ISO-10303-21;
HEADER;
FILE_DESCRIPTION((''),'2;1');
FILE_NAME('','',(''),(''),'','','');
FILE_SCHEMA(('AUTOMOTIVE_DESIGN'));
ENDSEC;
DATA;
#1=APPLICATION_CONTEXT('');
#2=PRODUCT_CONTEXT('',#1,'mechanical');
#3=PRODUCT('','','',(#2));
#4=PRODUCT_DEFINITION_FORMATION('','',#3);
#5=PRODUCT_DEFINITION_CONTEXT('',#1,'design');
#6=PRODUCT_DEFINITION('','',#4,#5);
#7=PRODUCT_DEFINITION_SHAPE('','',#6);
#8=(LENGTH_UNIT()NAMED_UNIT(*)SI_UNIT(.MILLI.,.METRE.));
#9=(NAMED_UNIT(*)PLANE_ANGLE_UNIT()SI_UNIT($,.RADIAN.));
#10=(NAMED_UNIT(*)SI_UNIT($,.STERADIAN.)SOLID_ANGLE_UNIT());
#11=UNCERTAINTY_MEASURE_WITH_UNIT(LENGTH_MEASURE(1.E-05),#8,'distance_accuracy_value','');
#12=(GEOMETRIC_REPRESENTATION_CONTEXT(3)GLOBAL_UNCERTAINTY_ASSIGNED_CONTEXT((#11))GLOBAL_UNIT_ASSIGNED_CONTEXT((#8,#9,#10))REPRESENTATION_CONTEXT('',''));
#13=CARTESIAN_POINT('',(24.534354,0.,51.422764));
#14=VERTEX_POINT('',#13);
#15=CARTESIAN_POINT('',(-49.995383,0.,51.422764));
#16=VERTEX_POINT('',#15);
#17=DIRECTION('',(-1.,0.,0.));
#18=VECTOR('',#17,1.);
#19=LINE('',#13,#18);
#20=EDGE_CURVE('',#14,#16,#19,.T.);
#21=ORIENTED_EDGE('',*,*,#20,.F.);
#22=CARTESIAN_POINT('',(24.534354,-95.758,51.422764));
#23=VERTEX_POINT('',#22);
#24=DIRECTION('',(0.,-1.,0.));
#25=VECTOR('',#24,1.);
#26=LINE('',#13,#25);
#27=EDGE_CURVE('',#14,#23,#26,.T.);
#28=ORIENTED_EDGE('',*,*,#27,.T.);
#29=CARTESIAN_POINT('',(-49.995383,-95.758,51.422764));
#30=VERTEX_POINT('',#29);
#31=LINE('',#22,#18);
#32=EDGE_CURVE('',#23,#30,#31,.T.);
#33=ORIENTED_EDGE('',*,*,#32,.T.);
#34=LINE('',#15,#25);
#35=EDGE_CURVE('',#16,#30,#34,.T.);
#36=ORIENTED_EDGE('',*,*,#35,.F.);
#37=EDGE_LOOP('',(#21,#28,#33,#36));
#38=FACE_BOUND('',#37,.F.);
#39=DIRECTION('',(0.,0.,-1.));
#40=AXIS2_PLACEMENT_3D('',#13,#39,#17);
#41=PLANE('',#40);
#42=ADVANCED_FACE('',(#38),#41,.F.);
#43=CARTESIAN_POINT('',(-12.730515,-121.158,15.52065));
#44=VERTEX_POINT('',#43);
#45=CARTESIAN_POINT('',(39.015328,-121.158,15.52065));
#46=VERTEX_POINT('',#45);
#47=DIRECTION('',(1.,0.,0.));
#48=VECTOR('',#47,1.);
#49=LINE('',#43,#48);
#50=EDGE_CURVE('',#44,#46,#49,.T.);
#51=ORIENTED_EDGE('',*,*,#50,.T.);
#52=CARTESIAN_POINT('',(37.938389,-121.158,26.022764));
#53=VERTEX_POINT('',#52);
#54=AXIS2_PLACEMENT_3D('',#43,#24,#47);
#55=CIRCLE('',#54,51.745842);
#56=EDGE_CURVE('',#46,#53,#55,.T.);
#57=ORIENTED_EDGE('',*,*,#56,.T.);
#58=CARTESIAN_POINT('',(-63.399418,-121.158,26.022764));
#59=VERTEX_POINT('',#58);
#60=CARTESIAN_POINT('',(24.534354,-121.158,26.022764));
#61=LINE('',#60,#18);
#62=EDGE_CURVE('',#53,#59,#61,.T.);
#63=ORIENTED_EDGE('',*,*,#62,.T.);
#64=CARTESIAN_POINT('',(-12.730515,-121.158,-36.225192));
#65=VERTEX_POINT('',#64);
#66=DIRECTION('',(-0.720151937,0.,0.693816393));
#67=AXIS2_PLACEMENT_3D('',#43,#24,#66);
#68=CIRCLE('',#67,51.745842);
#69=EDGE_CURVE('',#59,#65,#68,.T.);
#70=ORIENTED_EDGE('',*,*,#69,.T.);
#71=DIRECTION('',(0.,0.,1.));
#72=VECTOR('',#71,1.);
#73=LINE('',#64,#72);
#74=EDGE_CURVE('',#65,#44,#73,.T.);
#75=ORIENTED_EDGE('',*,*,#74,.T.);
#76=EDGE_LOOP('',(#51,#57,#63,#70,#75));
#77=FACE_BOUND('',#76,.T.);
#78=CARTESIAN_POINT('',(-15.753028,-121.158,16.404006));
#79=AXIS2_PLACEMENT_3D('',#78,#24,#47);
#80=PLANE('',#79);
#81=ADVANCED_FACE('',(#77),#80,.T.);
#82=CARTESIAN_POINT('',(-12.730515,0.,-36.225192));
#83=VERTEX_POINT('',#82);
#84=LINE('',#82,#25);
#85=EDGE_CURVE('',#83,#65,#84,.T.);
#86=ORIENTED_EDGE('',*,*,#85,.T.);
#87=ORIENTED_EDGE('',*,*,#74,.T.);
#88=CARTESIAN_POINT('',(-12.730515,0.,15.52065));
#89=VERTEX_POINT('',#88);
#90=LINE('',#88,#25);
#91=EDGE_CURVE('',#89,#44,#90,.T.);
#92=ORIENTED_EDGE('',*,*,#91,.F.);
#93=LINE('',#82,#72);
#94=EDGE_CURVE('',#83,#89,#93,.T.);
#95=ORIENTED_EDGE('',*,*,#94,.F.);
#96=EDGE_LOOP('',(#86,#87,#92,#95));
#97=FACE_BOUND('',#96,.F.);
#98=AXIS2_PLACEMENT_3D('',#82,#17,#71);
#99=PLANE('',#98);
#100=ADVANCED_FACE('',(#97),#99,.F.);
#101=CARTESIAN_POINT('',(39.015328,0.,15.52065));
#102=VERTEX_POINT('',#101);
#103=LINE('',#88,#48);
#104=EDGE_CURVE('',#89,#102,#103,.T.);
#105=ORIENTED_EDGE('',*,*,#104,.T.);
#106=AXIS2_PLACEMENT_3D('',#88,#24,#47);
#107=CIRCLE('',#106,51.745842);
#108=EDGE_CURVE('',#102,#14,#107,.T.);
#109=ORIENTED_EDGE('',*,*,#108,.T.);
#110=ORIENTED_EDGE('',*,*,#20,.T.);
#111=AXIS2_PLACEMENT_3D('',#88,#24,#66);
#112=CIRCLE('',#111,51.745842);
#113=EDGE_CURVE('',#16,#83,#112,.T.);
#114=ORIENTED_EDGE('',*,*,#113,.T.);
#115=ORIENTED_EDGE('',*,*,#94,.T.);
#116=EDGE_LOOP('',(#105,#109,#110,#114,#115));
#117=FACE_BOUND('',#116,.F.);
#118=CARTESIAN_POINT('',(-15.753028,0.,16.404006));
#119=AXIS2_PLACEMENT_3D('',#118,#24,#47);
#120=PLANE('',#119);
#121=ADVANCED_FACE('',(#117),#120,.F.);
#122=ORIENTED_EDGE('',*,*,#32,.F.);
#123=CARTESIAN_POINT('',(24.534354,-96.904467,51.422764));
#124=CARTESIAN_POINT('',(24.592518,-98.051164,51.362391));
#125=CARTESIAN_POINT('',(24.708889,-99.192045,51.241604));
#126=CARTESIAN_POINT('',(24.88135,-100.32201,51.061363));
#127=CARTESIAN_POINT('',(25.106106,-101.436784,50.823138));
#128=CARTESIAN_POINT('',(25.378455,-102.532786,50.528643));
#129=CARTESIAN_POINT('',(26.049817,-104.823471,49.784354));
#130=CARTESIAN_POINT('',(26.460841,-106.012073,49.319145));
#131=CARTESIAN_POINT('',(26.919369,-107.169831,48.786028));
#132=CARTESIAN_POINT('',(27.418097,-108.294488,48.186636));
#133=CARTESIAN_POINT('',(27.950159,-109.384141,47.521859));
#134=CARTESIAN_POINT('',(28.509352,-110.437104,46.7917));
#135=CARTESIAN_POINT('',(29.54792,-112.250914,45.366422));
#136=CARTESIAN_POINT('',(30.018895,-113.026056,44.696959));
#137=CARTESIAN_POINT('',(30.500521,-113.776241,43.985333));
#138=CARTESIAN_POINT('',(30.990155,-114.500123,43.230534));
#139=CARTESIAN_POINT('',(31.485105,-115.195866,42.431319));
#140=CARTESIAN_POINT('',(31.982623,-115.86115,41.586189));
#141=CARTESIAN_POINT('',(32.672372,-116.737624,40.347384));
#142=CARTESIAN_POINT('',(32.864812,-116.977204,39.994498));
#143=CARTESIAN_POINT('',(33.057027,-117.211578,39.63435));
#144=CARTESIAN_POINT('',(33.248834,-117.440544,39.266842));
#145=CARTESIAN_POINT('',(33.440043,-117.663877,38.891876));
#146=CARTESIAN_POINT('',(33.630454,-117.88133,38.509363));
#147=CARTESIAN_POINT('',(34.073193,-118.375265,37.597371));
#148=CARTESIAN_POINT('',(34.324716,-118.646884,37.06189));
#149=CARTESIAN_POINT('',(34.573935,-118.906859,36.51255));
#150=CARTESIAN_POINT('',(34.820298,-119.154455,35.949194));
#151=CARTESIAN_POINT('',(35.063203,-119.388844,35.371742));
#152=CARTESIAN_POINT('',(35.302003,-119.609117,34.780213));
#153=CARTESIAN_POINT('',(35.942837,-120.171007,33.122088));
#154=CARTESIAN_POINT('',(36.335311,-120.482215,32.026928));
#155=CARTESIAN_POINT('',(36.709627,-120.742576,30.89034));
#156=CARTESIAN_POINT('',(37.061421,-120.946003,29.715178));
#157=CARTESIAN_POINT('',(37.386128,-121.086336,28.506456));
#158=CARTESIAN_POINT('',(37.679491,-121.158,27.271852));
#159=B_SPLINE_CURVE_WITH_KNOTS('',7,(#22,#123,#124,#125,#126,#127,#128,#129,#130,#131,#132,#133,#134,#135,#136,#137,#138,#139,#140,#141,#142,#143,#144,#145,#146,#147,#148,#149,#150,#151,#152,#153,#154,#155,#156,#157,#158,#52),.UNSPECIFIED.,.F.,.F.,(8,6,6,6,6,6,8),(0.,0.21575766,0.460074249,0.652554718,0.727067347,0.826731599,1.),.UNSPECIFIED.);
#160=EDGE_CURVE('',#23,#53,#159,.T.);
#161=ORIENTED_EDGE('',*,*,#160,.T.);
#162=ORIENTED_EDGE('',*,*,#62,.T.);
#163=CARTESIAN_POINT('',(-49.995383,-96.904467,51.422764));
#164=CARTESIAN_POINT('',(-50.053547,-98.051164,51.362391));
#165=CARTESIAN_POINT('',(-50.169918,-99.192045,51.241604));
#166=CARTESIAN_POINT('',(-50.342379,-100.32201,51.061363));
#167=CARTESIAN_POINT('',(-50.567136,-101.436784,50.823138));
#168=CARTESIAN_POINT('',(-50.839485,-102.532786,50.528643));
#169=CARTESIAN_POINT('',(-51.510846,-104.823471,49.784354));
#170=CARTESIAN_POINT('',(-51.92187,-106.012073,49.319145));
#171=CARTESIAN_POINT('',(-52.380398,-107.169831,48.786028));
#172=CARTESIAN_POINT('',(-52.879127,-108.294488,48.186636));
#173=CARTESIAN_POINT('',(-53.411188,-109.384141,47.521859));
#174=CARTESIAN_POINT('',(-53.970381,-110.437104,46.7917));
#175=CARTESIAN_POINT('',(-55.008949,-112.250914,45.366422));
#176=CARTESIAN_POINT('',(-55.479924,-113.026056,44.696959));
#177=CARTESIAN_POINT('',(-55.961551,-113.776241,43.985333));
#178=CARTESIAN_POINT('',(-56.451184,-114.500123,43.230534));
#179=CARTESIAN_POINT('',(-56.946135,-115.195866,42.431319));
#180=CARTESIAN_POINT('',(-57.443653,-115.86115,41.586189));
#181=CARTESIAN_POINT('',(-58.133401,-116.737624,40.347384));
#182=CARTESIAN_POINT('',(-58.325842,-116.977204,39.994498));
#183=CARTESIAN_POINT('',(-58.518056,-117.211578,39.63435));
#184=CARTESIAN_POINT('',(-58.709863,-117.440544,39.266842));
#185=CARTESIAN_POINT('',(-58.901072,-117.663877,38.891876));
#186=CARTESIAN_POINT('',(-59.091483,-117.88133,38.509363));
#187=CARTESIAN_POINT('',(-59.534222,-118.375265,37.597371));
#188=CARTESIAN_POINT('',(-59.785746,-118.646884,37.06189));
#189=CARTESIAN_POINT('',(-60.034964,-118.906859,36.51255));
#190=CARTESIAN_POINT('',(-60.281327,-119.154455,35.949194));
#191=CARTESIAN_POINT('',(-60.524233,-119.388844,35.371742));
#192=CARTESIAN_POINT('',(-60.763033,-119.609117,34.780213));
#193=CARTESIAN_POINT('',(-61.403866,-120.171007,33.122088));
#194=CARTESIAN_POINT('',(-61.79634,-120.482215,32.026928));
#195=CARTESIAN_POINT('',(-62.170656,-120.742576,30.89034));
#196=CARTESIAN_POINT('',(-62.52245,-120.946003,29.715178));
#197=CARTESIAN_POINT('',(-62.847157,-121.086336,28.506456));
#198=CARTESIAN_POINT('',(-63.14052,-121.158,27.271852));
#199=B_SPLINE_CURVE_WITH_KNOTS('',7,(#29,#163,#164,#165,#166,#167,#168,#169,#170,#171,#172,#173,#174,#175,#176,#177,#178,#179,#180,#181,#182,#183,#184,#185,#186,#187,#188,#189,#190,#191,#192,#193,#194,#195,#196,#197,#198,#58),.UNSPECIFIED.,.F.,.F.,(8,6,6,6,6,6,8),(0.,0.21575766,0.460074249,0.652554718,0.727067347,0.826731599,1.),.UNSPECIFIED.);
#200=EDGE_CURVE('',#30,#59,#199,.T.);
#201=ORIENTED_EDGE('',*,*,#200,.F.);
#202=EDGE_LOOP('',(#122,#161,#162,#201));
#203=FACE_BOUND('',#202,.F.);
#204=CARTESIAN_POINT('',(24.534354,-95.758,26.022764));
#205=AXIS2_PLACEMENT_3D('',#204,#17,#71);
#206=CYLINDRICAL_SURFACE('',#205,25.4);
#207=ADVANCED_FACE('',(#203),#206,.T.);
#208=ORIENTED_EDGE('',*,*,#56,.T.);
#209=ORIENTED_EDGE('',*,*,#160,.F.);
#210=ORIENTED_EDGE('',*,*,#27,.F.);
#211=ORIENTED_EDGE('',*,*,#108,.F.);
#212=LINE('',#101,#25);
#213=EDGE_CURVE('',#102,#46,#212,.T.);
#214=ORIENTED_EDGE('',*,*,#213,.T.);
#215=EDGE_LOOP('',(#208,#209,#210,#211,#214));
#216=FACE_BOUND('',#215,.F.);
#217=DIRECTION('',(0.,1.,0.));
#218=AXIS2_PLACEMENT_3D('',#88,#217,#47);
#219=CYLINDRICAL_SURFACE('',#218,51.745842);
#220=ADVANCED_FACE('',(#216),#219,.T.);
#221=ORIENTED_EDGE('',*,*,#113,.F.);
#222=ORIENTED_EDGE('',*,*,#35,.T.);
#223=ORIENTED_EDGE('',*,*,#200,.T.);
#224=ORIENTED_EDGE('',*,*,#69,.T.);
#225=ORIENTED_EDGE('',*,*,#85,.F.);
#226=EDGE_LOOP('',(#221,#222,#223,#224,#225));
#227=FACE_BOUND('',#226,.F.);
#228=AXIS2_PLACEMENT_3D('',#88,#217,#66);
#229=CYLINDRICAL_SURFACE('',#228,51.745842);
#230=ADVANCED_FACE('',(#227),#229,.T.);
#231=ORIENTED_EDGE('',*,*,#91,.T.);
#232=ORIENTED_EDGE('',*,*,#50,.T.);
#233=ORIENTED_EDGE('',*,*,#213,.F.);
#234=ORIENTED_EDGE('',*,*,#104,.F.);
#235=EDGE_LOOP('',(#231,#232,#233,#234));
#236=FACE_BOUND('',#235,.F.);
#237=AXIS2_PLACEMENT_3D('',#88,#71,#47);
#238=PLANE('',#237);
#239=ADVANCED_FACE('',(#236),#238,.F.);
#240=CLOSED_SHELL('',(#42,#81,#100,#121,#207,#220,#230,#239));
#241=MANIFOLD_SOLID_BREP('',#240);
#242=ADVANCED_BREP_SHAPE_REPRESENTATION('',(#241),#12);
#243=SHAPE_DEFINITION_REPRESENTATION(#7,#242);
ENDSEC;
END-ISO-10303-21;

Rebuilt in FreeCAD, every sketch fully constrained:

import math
import FreeCAD as App
import Part
import Sketcher
Q = App.Units.Quantity


def edges_at(feature, points):
    """Names of the edges that pass closest to the given points."""
    edges = feature.Shape.Edges
    near = lambda p: min(range(len(edges)), key=lambda i: edges[i].distToShape(Part.Vertex(*p))[0])
    return sorted({f"Edge{near(p) + 1}" for p in points})

doc = App.newDocument("Part")
body = doc.addObject("PartDesign::Body", "Body")

# Sketch on XZ plane
sketch1 = body.newObject("Sketcher::SketchObject", "Sketch")
sketch1.AttachmentSupport = (doc.getObject("XZ_Plane"), [""])
sketch1.MapMode = "FlatFace"
sketch1.addGeometry(Part.LineSegment(App.Vector(25, 51, 0), App.Vector(-50, 51, 0)), False)
sketch1.addGeometry(Part.ArcOfCircle(Part.Circle(App.Vector(-13, 16, 0), App.Vector(0, 0, 1), 52), math.radians(136), math.radians(270)), False)
sketch1.addGeometry(Part.LineSegment(App.Vector(-13, -36, 0), App.Vector(-13, 16, 0)), False)
sketch1.addGeometry(Part.LineSegment(App.Vector(-13, 16, 0), App.Vector(39, 16, 0)), False)
sketch1.addGeometry(Part.ArcOfCircle(Part.Circle(App.Vector(-13, 16, 0), App.Vector(0, 0, 1), 52), math.radians(0), math.radians(44)), False)
sketch1.addConstraint(Sketcher.Constraint("Coincident", 0, 2, 1, 1))
sketch1.addConstraint(Sketcher.Constraint("Coincident", 1, 2, 2, 1))
sketch1.addConstraint(Sketcher.Constraint("Coincident", 2, 2, 3, 1))
sketch1.addConstraint(Sketcher.Constraint("Coincident", 3, 2, 4, 1))
sketch1.addConstraint(Sketcher.Constraint("Coincident", 4, 2, 0, 1))
sketch1.addConstraint(Sketcher.Constraint("Horizontal", 0))
sketch1.addConstraint(Sketcher.Constraint("Vertical", 2))
sketch1.addConstraint(Sketcher.Constraint("Horizontal", 3))
sketch1.addConstraint(Sketcher.Constraint("Coincident", 4, 3, 1, 3))
sketch1.addConstraint(Sketcher.Constraint("Coincident", 2, 2, 1, 3))
sketch1.addConstraint(Sketcher.Constraint("Equal", 1, 4))
sketch1.addConstraint(Sketcher.Constraint("Radius", 1, Q("51.745842 mm")))
sketch1.addConstraint(Sketcher.Constraint("DistanceX", 0, 2, 0, 1, Q("74.529737 mm")))
sketch1.addConstraint(Sketcher.Constraint("DistanceY", -1, 1, 1, 3, Q("15.52065 mm")))
sketch1.addConstraint(Sketcher.Constraint("DistanceX", 1, 3, -1, 1, Q("12.730515 mm")))
pad1 = body.newObject("PartDesign::Pad", "Pad")
pad1.Profile = sketch1
pad1.Length = Q("4.77 in")
doc.recompute()

fillet = body.newObject("PartDesign::Fillet", "Fillet")
fillet.Base = (pad1, edges_at(pad1, [(-12.731, -121.158, 51.423)]))
fillet.Radius = Q("1 in")

doc.recompute()
